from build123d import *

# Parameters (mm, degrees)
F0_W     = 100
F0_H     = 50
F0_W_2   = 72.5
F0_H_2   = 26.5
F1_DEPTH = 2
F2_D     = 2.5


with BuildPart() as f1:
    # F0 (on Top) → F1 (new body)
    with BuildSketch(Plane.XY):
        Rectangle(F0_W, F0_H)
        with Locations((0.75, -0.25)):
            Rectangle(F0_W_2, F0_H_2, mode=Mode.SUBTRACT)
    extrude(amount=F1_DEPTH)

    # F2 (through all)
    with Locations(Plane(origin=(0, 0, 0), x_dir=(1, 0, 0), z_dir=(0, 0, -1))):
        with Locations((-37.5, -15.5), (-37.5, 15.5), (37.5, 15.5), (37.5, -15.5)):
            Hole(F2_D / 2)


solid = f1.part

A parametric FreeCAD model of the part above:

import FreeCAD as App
import Part
import Sketcher

V = App.Vector
Q = App.Units.Quantity


def add_polygon(sketch, points):
    """Adds a closed chain of lines whose ends are joined by coincident constraints."""
    first, n = sketch.GeometryCount, len(points)
    for a, b in zip(points, points[1:] + points[:1]):
        sketch.addGeometry(Part.LineSegment(App.Vector(*a, 0), App.Vector(*b, 0)), False)
    for i in range(n):
        sketch.addConstraint(Sketcher.Constraint("Coincident", first + i, 2, first + (i + 1) % n, 1))

doc = App.newDocument("Part")
body = doc.addObject("PartDesign::Body", "Body")

# Sketch on XY plane
sketch1 = body.newObject("Sketcher::SketchObject", "Sketch")
sketch1.AttachmentSupport = (doc.getObject("XY_Plane"), [""])
sketch1.MapMode = "FlatFace"
add_polygon(sketch1, [(-50, 25), (-50, -25), (50, -25), (50, 25)])  # lines 0-3
add_polygon(sketch1, [(37, -14), (-36, -14), (-36, 13), (37, 13)])  # lines 4-7
sketch1.addConstraint([
    Sketcher.Constraint("Vertical", 0),
    Sketcher.Constraint("Horizontal", 1),
    Sketcher.Constraint("Vertical", 2),
    Sketcher.Constraint("Horizontal", 3),
    Sketcher.Constraint("Horizontal", 4),
    Sketcher.Constraint("Vertical", 5),
    Sketcher.Constraint("Horizontal", 6),
    Sketcher.Constraint("Vertical", 7),
    Sketcher.Constraint("Symmetric", 0, 2, 2, 2, -1, 1),
    Sketcher.Constraint("DistanceX", 1, 1, 1, 2, Q("100 mm")),
    Sketcher.Constraint("DistanceY", 0, 2, 0, 1, Q("50 mm")),
    Sketcher.Constraint("DistanceX", 4, 2, 4, 1, Q("72.5 mm")),
    Sketcher.Constraint("DistanceY", 5, 1, 5, 2, Q("26.5 mm")),
    Sketcher.Constraint("DistanceY", -1, 1, 5, 2, Q("13 mm")),
    Sketcher.Constraint("DistanceX", -1, 1, 6, 2, Q("37 mm")),
])
pad1 = body.newObject("PartDesign::Pad", "Pad")
pad1.Profile = sketch1
pad1.Length = 2

# Sketch on XY plane
sketch2 = body.newObject("Sketcher::SketchObject", "Sketch001")
sketch2.AttachmentSupport = (doc.getObject("XY_Plane"), [""])
sketch2.MapMode = "FlatFace"
sketch2.addGeometry([
    Part.Circle(V(-37.5, 15.5, 0), V(0, 0, 1), 1.2),
    Part.Circle(V(-37.5, -15.5, 0), V(0, 0, 1), 1.2),
    Part.Circle(V(37.5, -15.5, 0), V(0, 0, 1), 1.2),
    Part.Circle(V(37.5, 15.5, 0), V(0, 0, 1), 1.2),
], False)
sketch2.addConstraint([
    Sketcher.Constraint("Equal", 0, 1),
    Sketcher.Constraint("Equal", 1, 2),
    Sketcher.Constraint("Equal", 2, 3),
    Sketcher.Constraint("Symmetric", 0, 3, 2, 3, -1, 1),
    Sketcher.Constraint("Symmetric", 1, 3, 3, 3, -1, 1),
    Sketcher.Constraint("Symmetric", 1, 3, 2, 3, -2),
    Sketcher.Constraint("Diameter", 0, Q("2.5 mm")),
    Sketcher.Constraint("DistanceY", 1, 3, 0, 3, Q("31 mm")),
    Sketcher.Constraint("DistanceX", 1, 3, 2, 3, Q("75 mm")),
])
doc.recompute()
hole = body.newObject("PartDesign::Hole", "Hole")
hole.Profile = sketch2
hole.ThreadType = "None"
hole.Diameter = 2.5
hole.DepthType = "ThroughAll"
hole.Reversed = True

doc.recompute()
